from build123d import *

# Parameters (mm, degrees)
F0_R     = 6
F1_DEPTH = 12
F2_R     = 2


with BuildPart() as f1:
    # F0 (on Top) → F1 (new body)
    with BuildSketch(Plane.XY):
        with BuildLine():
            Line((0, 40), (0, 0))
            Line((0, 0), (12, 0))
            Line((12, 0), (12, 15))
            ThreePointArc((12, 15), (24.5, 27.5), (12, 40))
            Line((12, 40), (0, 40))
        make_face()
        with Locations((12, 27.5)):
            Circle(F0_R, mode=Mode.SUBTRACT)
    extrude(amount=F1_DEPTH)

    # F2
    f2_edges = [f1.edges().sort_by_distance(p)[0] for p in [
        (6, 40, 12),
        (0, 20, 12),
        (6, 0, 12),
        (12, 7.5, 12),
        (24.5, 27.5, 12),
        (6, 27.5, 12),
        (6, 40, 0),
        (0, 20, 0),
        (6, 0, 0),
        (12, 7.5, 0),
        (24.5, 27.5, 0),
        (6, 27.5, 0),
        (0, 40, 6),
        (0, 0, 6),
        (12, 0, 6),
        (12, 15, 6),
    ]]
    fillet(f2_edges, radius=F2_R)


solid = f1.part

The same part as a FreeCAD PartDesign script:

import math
import FreeCAD as App
import Part
import Sketcher
from FreeCAD import Vector
Q = App.Units.Quantity

doc = App.newDocument("Part")
body = doc.addObject("PartDesign::Body", "Body")

# Sketch on XY plane
sketch1 = body.newObject("Sketcher::SketchObject", "Sketch")
sketch1.AttachmentSupport = (doc.getObject("XY_Plane"), [""])
sketch1.MapMode = "FlatFace"
sketch1.addGeometry(Part.LineSegment(Vector(0, 40, 0), Vector(0, 0, 0)), False)
sketch1.addGeometry(Part.LineSegment(Vector(0, 0, 0), Vector(12, 0, 0)), False)
sketch1.addGeometry(Part.LineSegment(Vector(12, 0, 0), Vector(12, 15, 0)), False)
sketch1.addGeometry(Part.ArcOfCircle(Part.Circle(Vector(12, 28, 0), Vector(0, 0, 1), 12), math.radians(-90), math.radians(90)), False)
sketch1.addGeometry(Part.LineSegment(Vector(12, 40, 0), Vector(0, 40, 0)), False)
sketch1.addGeometry(Part.Circle(Vector(12, 28, 0), Vector(0, 0, 1), 6), False)
sketch1.addConstraint(Sketcher.Constraint("Coincident", 0, 2, 1, 1))
sketch1.addConstraint(Sketcher.Constraint("Coincident", 1, 2, 2, 1))
sketch1.addConstraint(Sketcher.Constraint("Coincident", 2, 2, 3, 1))
sketch1.addConstraint(Sketcher.Constraint("Tangent", 3, 2, 4, 1))
sketch1.addConstraint(Sketcher.Constraint("Coincident", 4, 2, 0, 1))
sketch1.addConstraint(Sketcher.Constraint("Vertical", 0))
sketch1.addConstraint(Sketcher.Constraint("Horizontal", 1))
sketch1.addConstraint(Sketcher.Constraint("Vertical", 2))
sketch1.addConstraint(Sketcher.Constraint("Horizontal", 4))
sketch1.addConstraint(Sketcher.Constraint("Coincident", 0, 2, -1, 1))
sketch1.addConstraint(Sketcher.Constraint("Coincident", 5, 3, 3, 3))
sketch1.addConstraint(Sketcher.Constraint("Vertical", 5, 3, 1, 2))
sketch1.addConstraint(Sketcher.Constraint("Diameter", 5, Q("12 mm")))
sketch1.addConstraint(Sketcher.Constraint("Radius", 3, Q("12.5 mm")))
sketch1.addConstraint(Sketcher.Constraint("DistanceX", 1, 1, 1, 2, Q("12 mm")))
sketch1.addConstraint(Sketcher.Constraint("DistanceY", 0, 2, 0, 1, Q("40 mm")))
pad1 = body.newObject("PartDesign::Pad", "Pad")
pad1.Profile = sketch1
pad1.Length = 12
doc.recompute()

fillet = body.newObject("PartDesign::Fillet", "Fillet")
fillet.Base = (pad1, ["Edge1"])
fillet.UseAllEdges = True
fillet.Radius = 2

doc.recompute()
